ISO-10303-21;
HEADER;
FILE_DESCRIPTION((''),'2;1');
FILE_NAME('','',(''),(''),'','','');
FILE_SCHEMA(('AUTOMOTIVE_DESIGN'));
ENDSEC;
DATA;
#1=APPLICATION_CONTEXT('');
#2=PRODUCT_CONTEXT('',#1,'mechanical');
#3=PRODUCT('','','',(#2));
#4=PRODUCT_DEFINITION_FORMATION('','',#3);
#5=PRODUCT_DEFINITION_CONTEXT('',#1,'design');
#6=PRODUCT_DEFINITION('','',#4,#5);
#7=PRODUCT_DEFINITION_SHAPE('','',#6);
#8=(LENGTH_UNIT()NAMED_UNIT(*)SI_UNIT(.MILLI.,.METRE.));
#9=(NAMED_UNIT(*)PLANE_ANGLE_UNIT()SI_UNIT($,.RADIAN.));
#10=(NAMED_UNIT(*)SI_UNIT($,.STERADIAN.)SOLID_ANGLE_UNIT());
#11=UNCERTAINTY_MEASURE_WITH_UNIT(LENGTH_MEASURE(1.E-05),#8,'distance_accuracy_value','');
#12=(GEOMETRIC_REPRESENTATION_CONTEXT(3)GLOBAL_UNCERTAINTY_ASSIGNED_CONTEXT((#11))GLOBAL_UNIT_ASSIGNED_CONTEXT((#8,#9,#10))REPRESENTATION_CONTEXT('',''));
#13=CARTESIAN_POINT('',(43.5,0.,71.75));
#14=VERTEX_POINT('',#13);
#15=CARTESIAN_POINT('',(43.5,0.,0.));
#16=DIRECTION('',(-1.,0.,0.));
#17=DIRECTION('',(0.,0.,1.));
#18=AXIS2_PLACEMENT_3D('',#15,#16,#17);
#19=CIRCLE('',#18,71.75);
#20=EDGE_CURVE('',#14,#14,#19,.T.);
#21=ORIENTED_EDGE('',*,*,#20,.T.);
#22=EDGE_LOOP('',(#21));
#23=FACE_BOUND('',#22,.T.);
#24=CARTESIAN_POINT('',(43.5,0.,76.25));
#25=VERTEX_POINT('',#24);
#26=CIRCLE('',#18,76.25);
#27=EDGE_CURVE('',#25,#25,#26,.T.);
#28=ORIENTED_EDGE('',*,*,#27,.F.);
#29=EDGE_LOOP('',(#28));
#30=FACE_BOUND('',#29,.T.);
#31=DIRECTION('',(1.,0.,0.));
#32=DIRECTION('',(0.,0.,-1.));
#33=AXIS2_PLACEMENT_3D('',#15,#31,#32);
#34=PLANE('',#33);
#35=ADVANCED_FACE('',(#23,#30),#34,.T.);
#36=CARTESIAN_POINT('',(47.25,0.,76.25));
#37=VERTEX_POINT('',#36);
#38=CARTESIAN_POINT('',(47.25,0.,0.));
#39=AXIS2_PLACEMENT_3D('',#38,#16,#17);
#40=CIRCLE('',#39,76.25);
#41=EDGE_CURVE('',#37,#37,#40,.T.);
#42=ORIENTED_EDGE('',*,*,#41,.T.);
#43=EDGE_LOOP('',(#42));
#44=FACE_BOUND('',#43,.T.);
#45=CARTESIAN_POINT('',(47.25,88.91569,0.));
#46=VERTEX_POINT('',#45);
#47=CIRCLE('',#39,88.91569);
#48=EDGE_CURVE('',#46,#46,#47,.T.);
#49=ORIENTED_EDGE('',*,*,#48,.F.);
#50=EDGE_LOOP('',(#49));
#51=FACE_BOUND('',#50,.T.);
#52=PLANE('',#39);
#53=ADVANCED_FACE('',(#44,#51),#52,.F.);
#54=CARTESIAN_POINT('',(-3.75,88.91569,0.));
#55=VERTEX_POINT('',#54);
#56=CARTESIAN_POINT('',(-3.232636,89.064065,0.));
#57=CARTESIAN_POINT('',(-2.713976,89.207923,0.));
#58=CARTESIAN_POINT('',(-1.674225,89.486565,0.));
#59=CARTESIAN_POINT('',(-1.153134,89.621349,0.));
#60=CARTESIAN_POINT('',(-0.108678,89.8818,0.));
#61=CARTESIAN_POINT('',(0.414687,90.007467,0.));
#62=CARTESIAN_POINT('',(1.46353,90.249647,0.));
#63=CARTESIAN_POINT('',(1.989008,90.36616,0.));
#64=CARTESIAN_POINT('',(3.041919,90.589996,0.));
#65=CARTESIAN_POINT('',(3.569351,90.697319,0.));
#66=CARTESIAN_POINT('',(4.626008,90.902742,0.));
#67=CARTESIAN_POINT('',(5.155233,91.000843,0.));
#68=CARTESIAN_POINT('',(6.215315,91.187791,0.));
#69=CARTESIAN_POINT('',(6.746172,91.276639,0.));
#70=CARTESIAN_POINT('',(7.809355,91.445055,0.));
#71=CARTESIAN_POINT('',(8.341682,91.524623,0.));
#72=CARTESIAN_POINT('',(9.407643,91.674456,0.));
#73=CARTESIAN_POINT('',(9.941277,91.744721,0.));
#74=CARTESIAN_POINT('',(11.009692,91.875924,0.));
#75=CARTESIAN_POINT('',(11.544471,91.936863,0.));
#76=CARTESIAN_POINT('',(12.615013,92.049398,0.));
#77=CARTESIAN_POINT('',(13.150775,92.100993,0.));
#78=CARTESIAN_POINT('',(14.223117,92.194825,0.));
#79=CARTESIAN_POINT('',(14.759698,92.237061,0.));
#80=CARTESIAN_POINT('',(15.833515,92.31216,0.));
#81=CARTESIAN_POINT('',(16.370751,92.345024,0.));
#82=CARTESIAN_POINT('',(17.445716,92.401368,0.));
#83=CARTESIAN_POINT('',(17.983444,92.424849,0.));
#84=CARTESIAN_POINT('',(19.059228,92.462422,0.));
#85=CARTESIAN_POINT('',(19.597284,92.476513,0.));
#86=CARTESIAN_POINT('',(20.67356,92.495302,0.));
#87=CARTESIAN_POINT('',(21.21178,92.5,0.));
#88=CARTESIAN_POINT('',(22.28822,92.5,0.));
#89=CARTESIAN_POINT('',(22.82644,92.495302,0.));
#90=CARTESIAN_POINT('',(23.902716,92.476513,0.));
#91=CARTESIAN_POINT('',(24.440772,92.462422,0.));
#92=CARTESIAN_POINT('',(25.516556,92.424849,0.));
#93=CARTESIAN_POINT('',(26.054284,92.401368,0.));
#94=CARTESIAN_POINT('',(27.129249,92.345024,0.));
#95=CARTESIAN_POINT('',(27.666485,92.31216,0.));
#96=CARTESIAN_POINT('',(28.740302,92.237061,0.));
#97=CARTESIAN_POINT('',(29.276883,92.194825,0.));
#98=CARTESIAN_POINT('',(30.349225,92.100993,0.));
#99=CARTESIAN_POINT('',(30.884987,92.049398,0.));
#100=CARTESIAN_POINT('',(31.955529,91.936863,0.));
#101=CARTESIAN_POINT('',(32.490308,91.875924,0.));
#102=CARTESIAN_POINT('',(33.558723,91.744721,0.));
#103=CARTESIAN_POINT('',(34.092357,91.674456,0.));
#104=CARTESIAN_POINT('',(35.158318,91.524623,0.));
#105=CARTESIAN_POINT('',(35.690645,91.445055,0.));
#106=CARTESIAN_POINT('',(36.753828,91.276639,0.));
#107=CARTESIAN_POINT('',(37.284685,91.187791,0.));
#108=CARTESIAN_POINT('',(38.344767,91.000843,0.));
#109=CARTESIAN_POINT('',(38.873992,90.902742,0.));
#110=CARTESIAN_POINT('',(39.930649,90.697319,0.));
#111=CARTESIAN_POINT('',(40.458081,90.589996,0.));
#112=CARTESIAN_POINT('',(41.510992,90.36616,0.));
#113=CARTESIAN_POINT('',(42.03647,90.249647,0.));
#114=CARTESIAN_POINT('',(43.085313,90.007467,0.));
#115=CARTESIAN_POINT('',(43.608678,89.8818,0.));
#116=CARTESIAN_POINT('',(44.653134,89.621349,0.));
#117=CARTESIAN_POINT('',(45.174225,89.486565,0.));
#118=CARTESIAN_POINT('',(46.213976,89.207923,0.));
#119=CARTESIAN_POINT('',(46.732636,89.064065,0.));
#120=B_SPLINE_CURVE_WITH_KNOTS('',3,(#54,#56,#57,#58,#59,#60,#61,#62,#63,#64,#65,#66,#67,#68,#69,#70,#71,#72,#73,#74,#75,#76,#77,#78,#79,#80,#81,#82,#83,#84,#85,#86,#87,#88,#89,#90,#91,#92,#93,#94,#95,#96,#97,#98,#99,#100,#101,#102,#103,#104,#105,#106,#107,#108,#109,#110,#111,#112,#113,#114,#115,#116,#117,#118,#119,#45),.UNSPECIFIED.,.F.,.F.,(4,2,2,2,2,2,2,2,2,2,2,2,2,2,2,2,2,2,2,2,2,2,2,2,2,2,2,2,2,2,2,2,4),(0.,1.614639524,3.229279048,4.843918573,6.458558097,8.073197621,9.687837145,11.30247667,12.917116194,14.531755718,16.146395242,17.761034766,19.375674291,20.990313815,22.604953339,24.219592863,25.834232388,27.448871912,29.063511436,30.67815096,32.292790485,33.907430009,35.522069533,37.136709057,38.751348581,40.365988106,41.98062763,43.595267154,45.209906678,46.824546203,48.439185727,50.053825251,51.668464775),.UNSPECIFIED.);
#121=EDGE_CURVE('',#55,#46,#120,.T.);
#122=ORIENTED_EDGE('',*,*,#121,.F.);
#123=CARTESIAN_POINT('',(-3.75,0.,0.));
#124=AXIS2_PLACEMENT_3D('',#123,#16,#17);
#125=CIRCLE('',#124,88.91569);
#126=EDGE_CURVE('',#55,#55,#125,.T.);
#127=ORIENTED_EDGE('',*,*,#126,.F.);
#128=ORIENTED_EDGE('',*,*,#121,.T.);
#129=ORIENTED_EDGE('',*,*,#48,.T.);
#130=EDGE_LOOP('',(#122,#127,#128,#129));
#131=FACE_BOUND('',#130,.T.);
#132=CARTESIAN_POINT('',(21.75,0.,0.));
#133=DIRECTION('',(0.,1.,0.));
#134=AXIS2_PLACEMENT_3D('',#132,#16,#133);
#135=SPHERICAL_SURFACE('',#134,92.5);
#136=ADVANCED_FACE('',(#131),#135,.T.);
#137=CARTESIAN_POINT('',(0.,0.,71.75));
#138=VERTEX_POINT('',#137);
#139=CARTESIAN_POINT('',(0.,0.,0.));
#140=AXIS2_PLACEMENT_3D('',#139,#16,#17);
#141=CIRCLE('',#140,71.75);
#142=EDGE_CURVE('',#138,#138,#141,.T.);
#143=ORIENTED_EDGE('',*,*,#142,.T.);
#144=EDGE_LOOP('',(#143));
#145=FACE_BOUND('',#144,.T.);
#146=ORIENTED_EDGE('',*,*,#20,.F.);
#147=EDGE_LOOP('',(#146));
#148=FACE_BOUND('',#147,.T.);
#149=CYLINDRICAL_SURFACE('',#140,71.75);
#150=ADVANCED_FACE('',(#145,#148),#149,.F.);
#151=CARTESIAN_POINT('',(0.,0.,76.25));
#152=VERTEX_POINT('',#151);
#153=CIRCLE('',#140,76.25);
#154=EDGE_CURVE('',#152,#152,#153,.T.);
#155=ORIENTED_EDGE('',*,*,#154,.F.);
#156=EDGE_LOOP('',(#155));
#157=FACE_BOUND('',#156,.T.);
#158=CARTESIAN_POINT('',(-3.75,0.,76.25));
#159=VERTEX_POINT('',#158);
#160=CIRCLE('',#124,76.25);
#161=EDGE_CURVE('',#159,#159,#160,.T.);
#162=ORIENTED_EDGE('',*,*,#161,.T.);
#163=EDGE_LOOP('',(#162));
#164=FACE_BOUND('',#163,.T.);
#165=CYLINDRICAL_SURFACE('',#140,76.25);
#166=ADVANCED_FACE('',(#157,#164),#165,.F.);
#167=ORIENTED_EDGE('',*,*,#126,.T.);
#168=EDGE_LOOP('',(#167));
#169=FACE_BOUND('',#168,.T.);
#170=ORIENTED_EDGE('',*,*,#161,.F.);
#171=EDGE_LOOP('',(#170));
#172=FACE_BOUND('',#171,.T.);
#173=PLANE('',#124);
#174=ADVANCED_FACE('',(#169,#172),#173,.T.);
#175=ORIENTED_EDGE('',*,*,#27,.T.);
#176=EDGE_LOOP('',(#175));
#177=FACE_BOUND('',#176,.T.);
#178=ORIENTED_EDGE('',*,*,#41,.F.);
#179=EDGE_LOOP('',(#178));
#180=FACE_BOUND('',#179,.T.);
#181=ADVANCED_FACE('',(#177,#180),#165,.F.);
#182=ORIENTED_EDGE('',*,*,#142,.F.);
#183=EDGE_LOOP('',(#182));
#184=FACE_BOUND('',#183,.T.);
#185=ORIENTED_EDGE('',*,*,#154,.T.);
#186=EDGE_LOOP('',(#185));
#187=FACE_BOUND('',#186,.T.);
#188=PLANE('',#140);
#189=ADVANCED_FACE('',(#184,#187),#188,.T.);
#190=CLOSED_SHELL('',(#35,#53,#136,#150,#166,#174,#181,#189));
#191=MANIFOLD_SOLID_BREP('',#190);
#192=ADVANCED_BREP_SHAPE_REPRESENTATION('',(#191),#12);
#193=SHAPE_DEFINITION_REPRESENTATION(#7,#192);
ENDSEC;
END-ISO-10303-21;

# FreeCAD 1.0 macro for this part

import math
import FreeCAD as App
import Part
import Sketcher

V = App.Vector
Q = App.Units.Quantity

doc = App.newDocument("Part")
body = doc.addObject("PartDesign::Body", "Body")

sketch1 = body.newObject("Sketcher::SketchObject", "Sketch")
sketch1.AttachmentSupport = (doc.getObject("XY_Plane"), [""])
sketch1.MapMode = "FlatFace"
sketch1.addGeometry([
    Part.LineSegment(V(0, 76.2, 0), V(0, 71.8, 0)),
    Part.LineSegment(V(0, 71.8, 0), V(43.5, 71.8, 0)),
    Part.LineSegment(V(43.5, 71.8, 0), V(43.5, 76.2, 0)),
    Part.LineSegment(V(43.5, 76.2, 0), V(47.2, 76.2, 0)),
    Part.LineSegment(V(47.2, 76.2, 0), V(47.2, 88.9, 0)),
    Part.ArcOfCircle(Part.Circle(V(21.8, 0, 0), V(0, 0, 1), 92.5), math.radians(74), math.radians(90)),
    Part.ArcOfCircle(Part.Circle(V(21.7, 0, 0), V(0, 0, 1), 92.5), math.radians(90), math.radians(106)),
    Part.LineSegment(V(-3.8, 88.9, 0), V(-3.8, 76.2, 0)),
    Part.LineSegment(V(-3.8, 76.2, 0), V(0, 76.2, 0)),
], False)
sketch1.addConstraint([
    Sketcher.Constraint("Coincident", 0, 2, 1, 1),
    Sketcher.Constraint("Coincident", 1, 2, 2, 1),
    Sketcher.Constraint("Coincident", 2, 2, 3, 1),
    Sketcher.Constraint("Coincident", 3, 2, 4, 1),
    Sketcher.Constraint("Coincident", 4, 2, 5, 1),
    Sketcher.Constraint("Tangent", 5, 2, 6, 1),
    Sketcher.Constraint("Coincident", 6, 2, 7, 1),
    Sketcher.Constraint("Coincident", 7, 2, 8, 1),
    Sketcher.Constraint("Coincident", 8, 2, 0, 1),
    Sketcher.Constraint("Vertical", 0),
    Sketcher.Constraint("Horizontal", 1),
    Sketcher.Constraint("Vertical", 2),
    Sketcher.Constraint("Horizontal", 3),
    Sketcher.Constraint("Vertical", 4),
    Sketcher.Constraint("Vertical", 7),
    Sketcher.Constraint("Horizontal", 8),
    Sketcher.Constraint("Equal", 5, 6),
    Sketcher.Constraint("PointOnObject", 5, 3, -1),
    Sketcher.Constraint("PointOnObject", 0, 2, -2),
    Sketcher.Constraint("Horizontal", 4, 2, 6, 2),
    Sketcher.Constraint("Horizontal", 3, 2, 7, 2),
    Sketcher.Constraint("Vertical", 6, 3, 5, 2),
    Sketcher.Constraint("Equal", 3, 8),
    Sketcher.Constraint("Radius", 5, Q("92.5 mm")),
    Sketcher.Constraint("DistanceX", 1, 1, 1, 2, Q("43.5 mm")),
    Sketcher.Constraint("DistanceY", 0, 2, 0, 1, Q("4.5 mm")),
    Sketcher.Constraint("DistanceX", 6, 2, 4, 2, Q("51 mm")),
    Sketcher.Constraint("DistanceY", -1, 1, 0, 2, Q("71.75 mm")),
])
revolution = body.newObject("PartDesign::Revolution", "Revolution")
revolution.Profile = sketch1
revolution.ReferenceAxis = (sketch1, ["H_Axis"])
revolution.Angle = 360

doc.recompute()
